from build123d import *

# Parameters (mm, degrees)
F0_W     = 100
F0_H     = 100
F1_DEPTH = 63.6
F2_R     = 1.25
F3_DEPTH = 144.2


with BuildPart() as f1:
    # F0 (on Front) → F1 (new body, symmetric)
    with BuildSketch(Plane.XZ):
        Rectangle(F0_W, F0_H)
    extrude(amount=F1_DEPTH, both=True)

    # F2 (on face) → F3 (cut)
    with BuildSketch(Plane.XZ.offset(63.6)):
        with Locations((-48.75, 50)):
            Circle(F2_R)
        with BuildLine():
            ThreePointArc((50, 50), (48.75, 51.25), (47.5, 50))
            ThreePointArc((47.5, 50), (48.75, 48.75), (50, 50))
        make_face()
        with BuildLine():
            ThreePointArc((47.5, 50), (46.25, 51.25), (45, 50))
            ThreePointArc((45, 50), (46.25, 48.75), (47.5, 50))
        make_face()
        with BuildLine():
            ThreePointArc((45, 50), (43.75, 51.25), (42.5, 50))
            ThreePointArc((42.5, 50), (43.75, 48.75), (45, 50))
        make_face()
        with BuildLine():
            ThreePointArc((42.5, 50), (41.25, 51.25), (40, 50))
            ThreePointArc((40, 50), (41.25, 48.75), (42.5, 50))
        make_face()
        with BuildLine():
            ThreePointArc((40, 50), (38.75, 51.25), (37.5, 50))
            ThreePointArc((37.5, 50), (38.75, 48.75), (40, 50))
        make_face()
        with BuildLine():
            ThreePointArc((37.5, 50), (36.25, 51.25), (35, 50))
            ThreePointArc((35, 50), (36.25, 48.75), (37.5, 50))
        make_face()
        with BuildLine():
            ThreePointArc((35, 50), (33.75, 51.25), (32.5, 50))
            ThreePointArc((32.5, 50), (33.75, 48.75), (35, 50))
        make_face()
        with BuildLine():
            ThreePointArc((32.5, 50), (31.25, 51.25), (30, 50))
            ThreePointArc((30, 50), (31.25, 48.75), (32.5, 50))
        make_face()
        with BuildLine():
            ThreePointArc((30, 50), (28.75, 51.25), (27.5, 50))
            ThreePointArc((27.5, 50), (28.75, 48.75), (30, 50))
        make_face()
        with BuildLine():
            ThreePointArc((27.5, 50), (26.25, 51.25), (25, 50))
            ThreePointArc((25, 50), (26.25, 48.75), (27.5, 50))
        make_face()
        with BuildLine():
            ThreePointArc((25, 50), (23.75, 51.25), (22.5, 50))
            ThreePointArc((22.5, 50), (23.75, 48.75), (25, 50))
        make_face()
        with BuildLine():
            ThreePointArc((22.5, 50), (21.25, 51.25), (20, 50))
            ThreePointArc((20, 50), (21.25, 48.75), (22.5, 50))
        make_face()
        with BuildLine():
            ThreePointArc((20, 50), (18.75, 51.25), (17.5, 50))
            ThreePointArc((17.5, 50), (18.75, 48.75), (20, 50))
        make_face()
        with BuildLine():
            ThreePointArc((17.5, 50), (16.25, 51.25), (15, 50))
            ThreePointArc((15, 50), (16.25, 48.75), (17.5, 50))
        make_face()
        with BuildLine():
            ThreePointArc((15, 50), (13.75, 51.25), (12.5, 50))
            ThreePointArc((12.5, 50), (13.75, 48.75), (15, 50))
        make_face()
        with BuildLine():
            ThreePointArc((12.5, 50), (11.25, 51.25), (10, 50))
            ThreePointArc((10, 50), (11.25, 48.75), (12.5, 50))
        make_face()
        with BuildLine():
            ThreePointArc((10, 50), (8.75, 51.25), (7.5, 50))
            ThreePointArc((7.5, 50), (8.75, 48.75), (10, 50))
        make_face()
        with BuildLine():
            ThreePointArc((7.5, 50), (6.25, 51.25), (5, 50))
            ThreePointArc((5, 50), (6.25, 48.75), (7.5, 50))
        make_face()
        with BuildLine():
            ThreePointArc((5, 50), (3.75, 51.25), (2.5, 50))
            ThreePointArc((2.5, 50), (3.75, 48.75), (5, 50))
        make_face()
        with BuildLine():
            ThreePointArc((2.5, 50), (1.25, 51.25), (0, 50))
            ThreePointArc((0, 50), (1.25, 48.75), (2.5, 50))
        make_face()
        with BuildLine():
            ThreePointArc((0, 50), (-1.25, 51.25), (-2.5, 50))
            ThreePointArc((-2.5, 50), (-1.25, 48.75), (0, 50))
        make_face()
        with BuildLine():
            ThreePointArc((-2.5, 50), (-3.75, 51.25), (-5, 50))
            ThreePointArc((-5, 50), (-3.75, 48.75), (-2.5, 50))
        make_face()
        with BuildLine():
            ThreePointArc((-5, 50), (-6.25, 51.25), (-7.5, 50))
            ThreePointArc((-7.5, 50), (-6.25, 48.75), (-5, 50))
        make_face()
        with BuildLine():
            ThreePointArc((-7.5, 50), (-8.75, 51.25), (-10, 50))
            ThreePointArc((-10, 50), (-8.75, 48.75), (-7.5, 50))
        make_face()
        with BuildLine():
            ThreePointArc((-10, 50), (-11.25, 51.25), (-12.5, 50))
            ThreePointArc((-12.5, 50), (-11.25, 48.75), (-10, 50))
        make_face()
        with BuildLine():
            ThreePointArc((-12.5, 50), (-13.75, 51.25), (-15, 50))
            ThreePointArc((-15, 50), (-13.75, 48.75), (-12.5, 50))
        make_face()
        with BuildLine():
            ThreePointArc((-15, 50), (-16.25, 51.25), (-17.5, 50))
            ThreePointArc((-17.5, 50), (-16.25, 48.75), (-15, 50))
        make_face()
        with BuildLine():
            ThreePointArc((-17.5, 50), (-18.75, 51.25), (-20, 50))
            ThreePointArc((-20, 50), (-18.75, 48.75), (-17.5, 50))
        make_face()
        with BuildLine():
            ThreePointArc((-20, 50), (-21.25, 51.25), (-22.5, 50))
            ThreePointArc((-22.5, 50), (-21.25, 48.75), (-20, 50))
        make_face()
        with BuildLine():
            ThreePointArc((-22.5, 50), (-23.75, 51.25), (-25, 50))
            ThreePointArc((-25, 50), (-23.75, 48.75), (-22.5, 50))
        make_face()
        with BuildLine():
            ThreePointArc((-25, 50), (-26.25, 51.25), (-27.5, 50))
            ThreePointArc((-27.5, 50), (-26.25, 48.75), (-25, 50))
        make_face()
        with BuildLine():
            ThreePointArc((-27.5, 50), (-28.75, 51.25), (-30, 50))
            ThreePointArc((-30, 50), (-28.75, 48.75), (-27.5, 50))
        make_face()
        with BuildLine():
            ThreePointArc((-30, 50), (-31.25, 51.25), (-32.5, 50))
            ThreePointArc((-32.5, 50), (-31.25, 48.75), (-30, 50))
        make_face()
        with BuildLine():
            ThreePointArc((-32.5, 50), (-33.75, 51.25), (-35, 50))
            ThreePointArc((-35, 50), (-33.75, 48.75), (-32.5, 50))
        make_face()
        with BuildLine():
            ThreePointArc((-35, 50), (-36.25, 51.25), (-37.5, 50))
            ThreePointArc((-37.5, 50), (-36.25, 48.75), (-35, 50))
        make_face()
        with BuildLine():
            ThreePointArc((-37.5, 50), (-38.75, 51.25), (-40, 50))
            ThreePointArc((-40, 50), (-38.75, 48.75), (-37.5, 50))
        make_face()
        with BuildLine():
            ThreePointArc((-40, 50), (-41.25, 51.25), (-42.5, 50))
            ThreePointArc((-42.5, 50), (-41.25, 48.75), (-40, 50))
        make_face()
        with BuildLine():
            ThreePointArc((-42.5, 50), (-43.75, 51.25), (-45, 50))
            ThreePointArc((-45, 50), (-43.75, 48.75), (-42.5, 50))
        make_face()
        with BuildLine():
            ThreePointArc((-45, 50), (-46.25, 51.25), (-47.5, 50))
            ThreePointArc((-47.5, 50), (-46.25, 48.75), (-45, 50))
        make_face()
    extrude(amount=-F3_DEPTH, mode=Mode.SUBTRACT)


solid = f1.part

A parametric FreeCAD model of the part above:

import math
import FreeCAD as App
import Part
import Sketcher
Q = App.Units.Quantity

doc = App.newDocument("Part")
body = doc.addObject("PartDesign::Body", "Body")

# Sketch on XZ plane
sketch1 = body.newObject("Sketcher::SketchObject", "Sketch")
sketch1.AttachmentSupport = (doc.getObject("XZ_Plane"), [""])
sketch1.MapMode = "FlatFace"
sketch1.addGeometry([
    Part.LineSegment(App.Vector(-50, 50, 0), App.Vector(-50, -50, 0)),
    Part.LineSegment(App.Vector(-50, -50, 0), App.Vector(50, -50, 0)),
    Part.LineSegment(App.Vector(50, -50, 0), App.Vector(50, 50, 0)),
    Part.LineSegment(App.Vector(50, 50, 0), App.Vector(-50, 50, 0)),
], False)
sketch1.addConstraint([
    Sketcher.Constraint("Coincident", 0, 2, 1, 1),
    Sketcher.Constraint("Coincident", 1, 2, 2, 1),
    Sketcher.Constraint("Coincident", 2, 2, 3, 1),
    Sketcher.Constraint("Coincident", 3, 2, 0, 1),
    Sketcher.Constraint("Vertical", 0),
    Sketcher.Constraint("Horizontal", 1),
    Sketcher.Constraint("Vertical", 2),
    Sketcher.Constraint("Horizontal", 3),
    Sketcher.Constraint("Symmetric", 0, 2, 2, 2, -1, 1),
    Sketcher.Constraint("Equal", 3, 0),
    Sketcher.Constraint("DistanceX", 1, 1, 1, 2, Q("100 mm")),
])
pad1 = body.newObject("PartDesign::Pad", "Pad")
pad1.Profile = sketch1
pad1.Length = 127.2
pad1.Midplane = True

# Sketch on XZ plane
sketch2 = body.newObject("Sketcher::SketchObject", "Sketch001")
sketch2.AttachmentSupport = (doc.getObject("XZ_Plane"), [""])
sketch2.MapMode = "FlatFace"
sketch2.AttachmentOffset = App.Placement(App.Vector(0, 0, 63.6), App.Rotation())
sketch2.addGeometry([
    Part.Circle(App.Vector(-48.75, 50, 0), App.Vector(0, 0, 1), 1.25),  # 0
    Part.Circle(App.Vector(48.75, 50, 0), App.Vector(0, 0, 1), 1.25),  # 1
    Part.ArcOfCircle(Part.Circle(App.Vector(46.25, 50, 0), App.Vector(0, 0, 1), 1.25), math.radians(0), math.radians(180)),  # 2
    Part.ArcOfCircle(Part.Circle(App.Vector(46.25, 50, 0), App.Vector(0, 0, 1), 1.25), math.radians(180), math.radians(360)),  # 3
    Part.ArcOfCircle(Part.Circle(App.Vector(43.75, 50, 0), App.Vector(0, 0, 1), 1.25), math.radians(0), math.radians(180)),  # 4
    Part.ArcOfCircle(Part.Circle(App.Vector(43.75, 50, 0), App.Vector(0, 0, 1), 1.25), math.radians(180), math.radians(360)),  # 5
    Part.ArcOfCircle(Part.Circle(App.Vector(41.25, 50, 0), App.Vector(0, 0, 1), 1.25), math.radians(0), math.radians(180)),  # 6
    Part.ArcOfCircle(Part.Circle(App.Vector(41.25, 50, 0), App.Vector(0, 0, 1), 1.25), math.radians(180), math.radians(360)),  # 7
    Part.ArcOfCircle(Part.Circle(App.Vector(38.75, 50, 0), App.Vector(0, 0, 1), 1.25), math.radians(0), math.radians(180)),  # 8
    Part.ArcOfCircle(Part.Circle(App.Vector(38.75, 50, 0), App.Vector(0, 0, 1), 1.25), math.radians(180), math.radians(360)),  # 9
    Part.ArcOfCircle(Part.Circle(App.Vector(36.25, 50, 0), App.Vector(0, 0, 1), 1.25), math.radians(0), math.radians(180)),  # 10
    Part.ArcOfCircle(Part.Circle(App.Vector(36.25, 50, 0), App.Vector(0, 0, 1), 1.25), math.radians(180), math.radians(360)),  # 11
    Part.ArcOfCircle(Part.Circle(App.Vector(33.75, 50, 0), App.Vector(0, 0, 1), 1.25), math.radians(0), math.radians(180)),  # 12
    Part.ArcOfCircle(Part.Circle(App.Vector(33.75, 50, 0), App.Vector(0, 0, 1), 1.25), math.radians(180), math.radians(360)),  # 13
    Part.ArcOfCircle(Part.Circle(App.Vector(31.25, 50, 0), App.Vector(0, 0, 1), 1.25), math.radians(0), math.radians(180)),  # 14
    Part.ArcOfCircle(Part.Circle(App.Vector(31.25, 50, 0), App.Vector(0, 0, 1), 1.25), math.radians(180), math.radians(360)),  # 15
    Part.ArcOfCircle(Part.Circle(App.Vector(28.75, 50, 0), App.Vector(0, 0, 1), 1.25), math.radians(0), math.radians(180)),  # 16
    Part.ArcOfCircle(Part.Circle(App.Vector(28.75, 50, 0), App.Vector(0, 0, 1), 1.25), math.radians(180), math.radians(360)),  # 17
    Part.ArcOfCircle(Part.Circle(App.Vector(26.25, 50, 0), App.Vector(0, 0, 1), 1.25), math.radians(0), math.radians(180)),  # 18
    Part.ArcOfCircle(Part.Circle(App.Vector(26.25, 50, 0), App.Vector(0, 0, 1), 1.25), math.radians(180), math.radians(360)),  # 19
    Part.ArcOfCircle(Part.Circle(App.Vector(23.75, 50, 0), App.Vector(0, 0, 1), 1.25), math.radians(0), math.radians(180)),  # 20
    Part.ArcOfCircle(Part.Circle(App.Vector(23.75, 50, 0), App.Vector(0, 0, 1), 1.25), math.radians(180), math.radians(360)),  # 21
    Part.ArcOfCircle(Part.Circle(App.Vector(21.25, 50, 0), App.Vector(0, 0, 1), 1.25), math.radians(0), math.radians(180)),  # 22
    Part.ArcOfCircle(Part.Circle(App.Vector(21.25, 50, 0), App.Vector(0, 0, 1), 1.25), math.radians(180), math.radians(360)),  # 23
    Part.ArcOfCircle(Part.Circle(App.Vector(18.75, 50, 0), App.Vector(0, 0, 1), 1.25), math.radians(0), math.radians(180)),  # 24
    Part.ArcOfCircle(Part.Circle(App.Vector(18.75, 50, 0), App.Vector(0, 0, 1), 1.25), math.radians(180), math.radians(360)),  # 25
    Part.ArcOfCircle(Part.Circle(App.Vector(16.25, 50, 0), App.Vector(0, 0, 1), 1.25), math.radians(0), math.radians(180)),  # 26
    Part.ArcOfCircle(Part.Circle(App.Vector(16.25, 50, 0), App.Vector(0, 0, 1), 1.25), math.radians(180), math.radians(360)),  # 27
    Part.ArcOfCircle(Part.Circle(App.Vector(13.75, 50, 0), App.Vector(0, 0, 1), 1.25), math.radians(0), math.radians(180)),  # 28
    Part.ArcOfCircle(Part.Circle(App.Vector(13.75, 50, 0), App.Vector(0, 0, 1), 1.25), math.radians(180), math.radians(360)),  # 29
    Part.ArcOfCircle(Part.Circle(App.Vector(11.25, 50, 0), App.Vector(0, 0, 1), 1.25), math.radians(0), math.radians(180)),  # 30
    Part.ArcOfCircle(Part.Circle(App.Vector(11.25, 50, 0), App.Vector(0, 0, 1), 1.25), math.radians(180), math.radians(360)),  # 31
    Part.ArcOfCircle(Part.Circle(App.Vector(8.75, 50, 0), App.Vector(0, 0, 1), 1.25), math.radians(0), math.radians(180)),  # 32
    Part.ArcOfCircle(Part.Circle(App.Vector(8.75, 50, 0), App.Vector(0, 0, 1), 1.25), math.radians(180), math.radians(360)),  # 33
    Part.ArcOfCircle(Part.Circle(App.Vector(6.25, 50, 0), App.Vector(0, 0, 1), 1.25), math.radians(0), math.radians(180)),  # 34
    Part.ArcOfCircle(Part.Circle(App.Vector(6.25, 50, 0), App.Vector(0, 0, 1), 1.25), math.radians(180), math.radians(360)),  # 35
    Part.ArcOfCircle(Part.Circle(App.Vector(3.75, 50, 0), App.Vector(0, 0, 1), 1.25), math.radians(0), math.radians(180)),  # 36
    Part.ArcOfCircle(Part.Circle(App.Vector(3.75, 50, 0), App.Vector(0, 0, 1), 1.25), math.radians(180), math.radians(360)),  # 37
    Part.ArcOfCircle(Part.Circle(App.Vector(1.25, 50, 0), App.Vector(0, 0, 1), 1.25), math.radians(0), math.radians(180)),  # 38
    Part.ArcOfCircle(Part.Circle(App.Vector(1.25, 50, 0), App.Vector(0, 0, 1), 1.25), math.radians(180), math.radians(360)),  # 39
    Part.ArcOfCircle(Part.Circle(App.Vector(-1.25, 50, 0), App.Vector(0, 0, 1), 1.25), math.radians(0), math.radians(180)),  # 40
    Part.ArcOfCircle(Part.Circle(App.Vector(-1.25, 50, 0), App.Vector(0, 0, 1), 1.25), math.radians(180), math.radians(360)),  # 41
    Part.ArcOfCircle(Part.Circle(App.Vector(-3.75, 50, 0), App.Vector(0, 0, 1), 1.25), math.radians(0), math.radians(180)),  # 42
    Part.ArcOfCircle(Part.Circle(App.Vector(-3.75, 50, 0), App.Vector(0, 0, 1), 1.25), math.radians(180), math.radians(360)),  # 43
    Part.ArcOfCircle(Part.Circle(App.Vector(-6.25, 50, 0), App.Vector(0, 0, 1), 1.25), math.radians(0), math.radians(180)),  # 44
    Part.ArcOfCircle(Part.Circle(App.Vector(-6.25, 50, 0), App.Vector(0, 0, 1), 1.25), math.radians(180), math.radians(360)),  # 45
    Part.ArcOfCircle(Part.Circle(App.Vector(-8.75, 50, 0), App.Vector(0, 0, 1), 1.25), math.radians(0), math.radians(180)),  # 46
    Part.ArcOfCircle(Part.Circle(App.Vector(-8.75, 50, 0), App.Vector(0, 0, 1), 1.25), math.radians(180), math.radians(360)),  # 47
    Part.ArcOfCircle(Part.Circle(App.Vector(-11.25, 50, 0), App.Vector(0, 0, 1), 1.25), math.radians(0), math.radians(180)),  # 48
    Part.ArcOfCircle(Part.Circle(App.Vector(-11.25, 50, 0), App.Vector(0, 0, 1), 1.25), math.radians(180), math.radians(360)),  # 49
    Part.ArcOfCircle(Part.Circle(App.Vector(-13.75, 50, 0), App.Vector(0, 0, 1), 1.25), math.radians(0), math.radians(180)),  # 50
    Part.ArcOfCircle(Part.Circle(App.Vector(-13.75, 50, 0), App.Vector(0, 0, 1), 1.25), math.radians(180), math.radians(360)),  # 51
    Part.ArcOfCircle(Part.Circle(App.Vector(-16.25, 50, 0), App.Vector(0, 0, 1), 1.25), math.radians(0), math.radians(180)),  # 52
    Part.ArcOfCircle(Part.Circle(App.Vector(-16.25, 50, 0), App.Vector(0, 0, 1), 1.25), math.radians(180), math.radians(360)),  # 53
    Part.ArcOfCircle(Part.Circle(App.Vector(-18.75, 50, 0), App.Vector(0, 0, 1), 1.25), math.radians(0), math.radians(180)),  # 54
    Part.ArcOfCircle(Part.Circle(App.Vector(-18.75, 50, 0), App.Vector(0, 0, 1), 1.25), math.radians(180), math.radians(360)),  # 55
    Part.ArcOfCircle(Part.Circle(App.Vector(-21.25, 50, 0), App.Vector(0, 0, 1), 1.25), math.radians(0), math.radians(180)),  # 56
    Part.ArcOfCircle(Part.Circle(App.Vector(-21.25, 50, 0), App.Vector(0, 0, 1), 1.25), math.radians(180), math.radians(360)),  # 57
    Part.ArcOfCircle(Part.Circle(App.Vector(-23.75, 50, 0), App.Vector(0, 0, 1), 1.25), math.radians(0), math.radians(180)),  # 58
    Part.ArcOfCircle(Part.Circle(App.Vector(-23.75, 50, 0), App.Vector(0, 0, 1), 1.25), math.radians(180), math.radians(360)),  # 59
    Part.ArcOfCircle(Part.Circle(App.Vector(-26.25, 50, 0), App.Vector(0, 0, 1), 1.25), math.radians(0), math.radians(180)),  # 60
    Part.ArcOfCircle(Part.Circle(App.Vector(-26.25, 50, 0), App.Vector(0, 0, 1), 1.25), math.radians(180), math.radians(360)),  # 61
    Part.ArcOfCircle(Part.Circle(App.Vector(-28.75, 50, 0), App.Vector(0, 0, 1), 1.25), math.radians(0), math.radians(180)),  # 62
    Part.ArcOfCircle(Part.Circle(App.Vector(-28.75, 50, 0), App.Vector(0, 0, 1), 1.25), math.radians(180), math.radians(360)),  # 63
    Part.ArcOfCircle(Part.Circle(App.Vector(-31.25, 50, 0), App.Vector(0, 0, 1), 1.25), math.radians(0), math.radians(180)),  # 64
    Part.ArcOfCircle(Part.Circle(App.Vector(-31.25, 50, 0), App.Vector(0, 0, 1), 1.25), math.radians(180), math.radians(360)),  # 65
    Part.ArcOfCircle(Part.Circle(App.Vector(-33.75, 50, 0), App.Vector(0, 0, 1), 1.25), math.radians(0), math.radians(180)),  # 66
    Part.ArcOfCircle(Part.Circle(App.Vector(-33.75, 50, 0), App.Vector(0, 0, 1), 1.25), math.radians(180), math.radians(360)),  # 67
    Part.ArcOfCircle(Part.Circle(App.Vector(-36.25, 50, 0), App.Vector(0, 0, 1), 1.25), math.radians(0), math.radians(180)),  # 68
    Part.ArcOfCircle(Part.Circle(App.Vector(-36.25, 50, 0), App.Vector(0, 0, 1), 1.25), math.radians(180), math.radians(360)),  # 69
    Part.ArcOfCircle(Part.Circle(App.Vector(-38.75, 50, 0), App.Vector(0, 0, 1), 1.25), math.radians(0), math.radians(180)),  # 70
    Part.ArcOfCircle(Part.Circle(App.Vector(-38.75, 50, 0), App.Vector(0, 0, 1), 1.25), math.radians(180), math.radians(360)),  # 71
    Part.ArcOfCircle(Part.Circle(App.Vector(-41.25, 50, 0), App.Vector(0, 0, 1), 1.25), math.radians(0), math.radians(180)),  # 72
    Part.ArcOfCircle(Part.Circle(App.Vector(-41.25, 50, 0), App.Vector(0, 0, 1), 1.25), math.radians(180), math.radians(360)),  # 73
    Part.ArcOfCircle(Part.Circle(App.Vector(-43.75, 50, 0), App.Vector(0, 0, 1), 1.25), math.radians(0), math.radians(180)),  # 74
    Part.ArcOfCircle(Part.Circle(App.Vector(-43.75, 50, 0), App.Vector(0, 0, 1), 1.25), math.radians(180), math.radians(360)),  # 75
    Part.ArcOfCircle(Part.Circle(App.Vector(-46.25, 50, 0), App.Vector(0, 0, 1), 1.25), math.radians(180), math.radians(360)),  # 76
    Part.ArcOfCircle(Part.Circle(App.Vector(-46.25, 50, 0), App.Vector(0, 0, 1), 1.25), math.radians(0), math.radians(180)),  # 77
], False)
sketch2.addConstraint([
    Sketcher.Constraint("Tangent", 2, 1, 3, 2),
    Sketcher.Constraint("Coincident", 3, 1, 2, 2),
    Sketcher.Constraint("Tangent", 4, 1, 5, 2),
    Sketcher.Constraint("Coincident", 5, 1, 4, 2),
    Sketcher.Constraint("Tangent", 6, 1, 7, 2),
    Sketcher.Constraint("Coincident", 7, 1, 6, 2),
    Sketcher.Constraint("Tangent", 8, 1, 9, 2),
    Sketcher.Constraint("Coincident", 9, 1, 8, 2),
    Sketcher.Constraint("Tangent", 10, 1, 11, 2),
    Sketcher.Constraint("Coincident", 11, 1, 10, 2),
    Sketcher.Constraint("Tangent", 12, 1, 13, 2),
    Sketcher.Constraint("Coincident", 13, 1, 12, 2),
    Sketcher.Constraint("Tangent", 14, 1, 15, 2),
    Sketcher.Constraint("Coincident", 15, 1, 14, 2),
    Sketcher.Constraint("Tangent", 16, 1, 17, 2),
    Sketcher.Constraint("Coincident", 17, 1, 16, 2),
    Sketcher.Constraint("Tangent", 18, 1, 19, 2),
    Sketcher.Constraint("Coincident", 19, 1, 18, 2),
    Sketcher.Constraint("Tangent", 20, 1, 21, 2),
    Sketcher.Constraint("Coincident", 21, 1, 20, 2),
    Sketcher.Constraint("Tangent", 22, 1, 23, 2),
    Sketcher.Constraint("Coincident", 23, 1, 22, 2),
    Sketcher.Constraint("Tangent", 24, 1, 25, 2),
    Sketcher.Constraint("Coincident", 25, 1, 24, 2),
    Sketcher.Constraint("Tangent", 26, 1, 27, 2),
    Sketcher.Constraint("Coincident", 27, 1, 26, 2),
    Sketcher.Constraint("Tangent", 28, 1, 29, 2),
    Sketcher.Constraint("Coincident", 29, 1, 28, 2),
    Sketcher.Constraint("Tangent", 30, 1, 31, 2),
    Sketcher.Constraint("Coincident", 31, 1, 30, 2),
    Sketcher.Constraint("Tangent", 32, 1, 33, 2),
    Sketcher.Constraint("Coincident", 33, 1, 32, 2),
    Sketcher.Constraint("Tangent", 34, 1, 35, 2),
    Sketcher.Constraint("Coincident", 35, 1, 34, 2),
    Sketcher.Constraint("Tangent", 36, 1, 37, 2),
    Sketcher.Constraint("Coincident", 37, 1, 36, 2),
    Sketcher.Constraint("Tangent", 38, 1, 39, 2),
    Sketcher.Constraint("Coincident", 39, 1, 38, 2),
    Sketcher.Constraint("Tangent", 40, 1, 41, 2),
    Sketcher.Constraint("Coincident", 41, 1, 40, 2),
    Sketcher.Constraint("Tangent", 42, 1, 43, 2),
    Sketcher.Constraint("Coincident", 43, 1, 42, 2),
    Sketcher.Constraint("Tangent", 44, 1, 45, 2),
    Sketcher.Constraint("Coincident", 45, 1, 44, 2),
    Sketcher.Constraint("Tangent", 46, 1, 47, 2),
    Sketcher.Constraint("Coincident", 47, 1, 46, 2),
    Sketcher.Constraint("Tangent", 48, 1, 49, 2),
    Sketcher.Constraint("Coincident", 49, 1, 48, 2),
    Sketcher.Constraint("Tangent", 50, 1, 51, 2),
    Sketcher.Constraint("Coincident", 51, 1, 50, 2),
    Sketcher.Constraint("Tangent", 52, 1, 53, 2),
    Sketcher.Constraint("Coincident", 53, 1, 52, 2),
    Sketcher.Constraint("Tangent", 54, 1, 55, 2),
    Sketcher.Constraint("Coincident", 55, 1, 54, 2),
    Sketcher.Constraint("Tangent", 56, 1, 57, 2),
    Sketcher.Constraint("Coincident", 57, 1, 56, 2),
    Sketcher.Constraint("Tangent", 58, 1, 59, 2),
    Sketcher.Constraint("Coincident", 59, 1, 58, 2),
    Sketcher.Constraint("Tangent", 60, 1, 61, 2),
    Sketcher.Constraint("Coincident", 61, 1, 60, 2),
    Sketcher.Constraint("Tangent", 62, 1, 63, 2),
    Sketcher.Constraint("Coincident", 63, 1, 62, 2),
    Sketcher.Constraint("Tangent", 64, 1, 65, 2),
    Sketcher.Constraint("Coincident", 65, 1, 64, 2),
    Sketcher.Constraint("Tangent", 66, 1, 67, 2),
    Sketcher.Constraint("Coincident", 67, 1, 66, 2),
    Sketcher.Constraint("Tangent", 68, 1, 69, 2),
    Sketcher.Constraint("Coincident", 69, 1, 68, 2),
    Sketcher.Constraint("Tangent", 70, 1, 71, 2),
    Sketcher.Constraint("Coincident", 71, 1, 70, 2),
    Sketcher.Constraint("Tangent", 72, 1, 73, 2),
    Sketcher.Constraint("Coincident", 73, 1, 72, 2),
    Sketcher.Constraint("Tangent", 74, 1, 75, 2),
    Sketcher.Constraint("Coincident", 75, 1, 74, 2),
    Sketcher.Constraint("Tangent", 76, 1, 77, 2),
    Sketcher.Constraint("Coincident", 77, 1, 76, 2),
    Sketcher.Constraint("Coincident", 4, 1, 3, 1),
    Sketcher.Constraint("Coincident", 6, 1, 5, 1),
    Sketcher.Constraint("Coincident", 8, 1, 7, 1),
    Sketcher.Constraint("Coincident", 10, 1, 9, 1),
    Sketcher.Constraint("Coincident", 12, 1, 11, 1),
    Sketcher.Constraint("Coincident", 14, 1, 13, 1),
    Sketcher.Constraint("Coincident", 16, 1, 15, 1),
    Sketcher.Constraint("Coincident", 18, 1, 17, 1),
    Sketcher.Constraint("Coincident", 20, 1, 19, 1),
    Sketcher.Constraint("Coincident", 22, 1, 21, 1),
    Sketcher.Constraint("Coincident", 24, 1, 23, 1),
    Sketcher.Constraint("Coincident", 26, 1, 25, 1),
    Sketcher.Constraint("Coincident", 28, 1, 27, 1),
    Sketcher.Constraint("Coincident", 30, 1, 29, 1),
    Sketcher.Constraint("Coincident", 32, 1, 31, 1),
    Sketcher.Constraint("Coincident", 34, 1, 33, 1),
    Sketcher.Constraint("Coincident", 36, 1, 35, 1),
    Sketcher.Constraint("Coincident", 38, 1, 37, 1),
    Sketcher.Constraint("Coincident", 40, 1, 39, 1),
    Sketcher.Constraint("Coincident", 42, 1, 41, 1),
    Sketcher.Constraint("Coincident", 44, 1, 43, 1),
    Sketcher.Constraint("Coincident", 46, 1, 45, 1),
    Sketcher.Constraint("Coincident", 48, 1, 47, 1),
    Sketcher.Constraint("Coincident", 50, 1, 49, 1),
    Sketcher.Constraint("Coincident", 52, 1, 51, 1),
    Sketcher.Constraint("Coincident", 54, 1, 53, 1),
    Sketcher.Constraint("Coincident", 56, 1, 55, 1),
    Sketcher.Constraint("Coincident", 58, 1, 57, 1),
    Sketcher.Constraint("Coincident", 60, 1, 59, 1),
    Sketcher.Constraint("Coincident", 62, 1, 61, 1),
    Sketcher.Constraint("Coincident", 64, 1, 63, 1),
    Sketcher.Constraint("Coincident", 66, 1, 65, 1),
    Sketcher.Constraint("Coincident", 68, 1, 67, 1),
    Sketcher.Constraint("Coincident", 70, 1, 69, 1),
    Sketcher.Constraint("Coincident", 72, 1, 71, 1),
    Sketcher.Constraint("Coincident", 74, 1, 73, 1),
    Sketcher.Constraint("Coincident", 77, 1, 75, 1),
    Sketcher.Constraint("Equal", 0, 1),
    Sketcher.Constraint("Equal", 1, 2),
    Sketcher.Constraint("Equal", 3, 4),
    Sketcher.Constraint("Equal", 5, 6),
    Sketcher.Constraint("Equal", 7, 8),
    Sketcher.Constraint("Equal", 9, 10),
    Sketcher.Constraint("Equal", 11, 12),
    Sketcher.Constraint("Equal", 13, 14),
    Sketcher.Constraint("Equal", 15, 16),
    Sketcher.Constraint("Equal", 17, 18),
    Sketcher.Constraint("Equal", 19, 20),
    Sketcher.Constraint("Equal", 21, 22),
    Sketcher.Constraint("Equal", 23, 24),
    Sketcher.Constraint("Equal", 25, 26),
    Sketcher.Constraint("Equal", 27, 28),
    Sketcher.Constraint("Equal", 29, 30),
    Sketcher.Constraint("Equal", 31, 32),
    Sketcher.Constraint("Equal", 33, 34),
    Sketcher.Constraint("Equal", 35, 36),
    Sketcher.Constraint("Equal", 37, 38),
    Sketcher.Constraint("Equal", 39, 40),
    Sketcher.Constraint("Equal", 41, 42),
    Sketcher.Constraint("Equal", 43, 44),
    Sketcher.Constraint("Equal", 45, 46),
    Sketcher.Constraint("Equal", 47, 48),
    Sketcher.Constraint("Equal", 49, 50),
    Sketcher.Constraint("Equal", 51, 52),
    Sketcher.Constraint("Equal", 53, 54),
    Sketcher.Constraint("Equal", 55, 56),
    Sketcher.Constraint("Equal", 57, 58),
    Sketcher.Constraint("Equal", 59, 60),
    Sketcher.Constraint("Equal", 61, 62),
    Sketcher.Constraint("Equal", 63, 64),
    Sketcher.Constraint("Equal", 65, 66),
    Sketcher.Constraint("Equal", 67, 68),
    Sketcher.Constraint("Equal", 69, 70),
    Sketcher.Constraint("Equal", 71, 72),
    Sketcher.Constraint("Equal", 73, 74),
    Sketcher.Constraint("Equal", 75, 76),
    Sketcher.Constraint("Symmetric", 0, 3, 1, 3, -2),
    Sketcher.Constraint("Symmetric", 38, 3, 40, 3, -2),
    Sketcher.Constraint("Horizontal", 1, 3, 2, 3),
    Sketcher.Constraint("Horizontal", 3, 3, 4, 3),
    Sketcher.Constraint("Horizontal", 5, 3, 6, 3),
    Sketcher.Constraint("Horizontal", 7, 3, 8, 3),
    Sketcher.Constraint("Horizontal", 9, 3, 10, 3),
    Sketcher.Constraint("Horizontal", 11, 3, 12, 3),
    Sketcher.Constraint("Horizontal", 13, 3, 14, 3),
    Sketcher.Constraint("Horizontal", 15, 3, 16, 3),
    Sketcher.Constraint("Horizontal", 17, 3, 18, 3),
    Sketcher.Constraint("Horizontal", 19, 3, 20, 3),
    Sketcher.Constraint("Horizontal", 21, 3, 22, 3),
    Sketcher.Constraint("Horizontal", 23, 3, 24, 3),
    Sketcher.Constraint("Horizontal", 25, 3, 26, 3),
    Sketcher.Constraint("Horizontal", 27, 3, 28, 3),
    Sketcher.Constraint("Horizontal", 29, 3, 30, 3),
    Sketcher.Constraint("Horizontal", 31, 3, 32, 3),
    Sketcher.Constraint("Horizontal", 33, 3, 34, 3),
    Sketcher.Constraint("Horizontal", 35, 3, 36, 3),
    Sketcher.Constraint("Horizontal", 37, 3, 38, 3),
    Sketcher.Constraint("Horizontal", 41, 3, 42, 3),
    Sketcher.Constraint("Horizontal", 43, 3, 44, 3),
    Sketcher.Constraint("Horizontal", 45, 3, 46, 3),
    Sketcher.Constraint("Horizontal", 47, 3, 48, 3),
    Sketcher.Constraint("Horizontal", 49, 3, 50, 3),
    Sketcher.Constraint("Horizontal", 51, 3, 52, 3),
    Sketcher.Constraint("Horizontal", 53, 3, 54, 3),
    Sketcher.Constraint("Horizontal", 55, 3, 56, 3),
    Sketcher.Constraint("Horizontal", 57, 3, 58, 3),
    Sketcher.Constraint("Horizontal", 59, 3, 60, 3),
    Sketcher.Constraint("Horizontal", 61, 3, 62, 3),
    Sketcher.Constraint("Horizontal", 63, 3, 64, 3),
    Sketcher.Constraint("Horizontal", 65, 3, 66, 3),
    Sketcher.Constraint("Horizontal", 67, 3, 68, 3),
    Sketcher.Constraint("Horizontal", 69, 3, 70, 3),
    Sketcher.Constraint("Horizontal", 71, 3, 72, 3),
    Sketcher.Constraint("Horizontal", 73, 3, 74, 3),
    Sketcher.Constraint("Horizontal", 75, 3, 76, 3),
    Sketcher.Constraint("Horizontal", 77, 3, 2, 1),
    Sketcher.Constraint("Horizontal", 2, 1, 3, 1),
    Sketcher.Constraint("Horizontal", 4, 1, 5, 1),
    Sketcher.Constraint("Horizontal", 6, 1, 7, 1),
    Sketcher.Constraint("Horizontal", 8, 1, 9, 1),
    Sketcher.Constraint("Horizontal", 10, 1, 11, 1),
    Sketcher.Constraint("Horizontal", 12, 1, 13, 1),
    Sketcher.Constraint("Horizontal", 14, 1, 15, 1),
    Sketcher.Constraint("Horizontal", 16, 1, 17, 1),
    Sketcher.Constraint("Horizontal", 18, 1, 19, 1),
    Sketcher.Constraint("Horizontal", 20, 1, 21, 1),
    Sketcher.Constraint("Horizontal", 22, 1, 23, 1),
    Sketcher.Constraint("Horizontal", 24, 1, 25, 1),
    Sketcher.Constraint("Horizontal", 26, 1, 27, 1),
    Sketcher.Constraint("Horizontal", 28, 1, 29, 1),
    Sketcher.Constraint("Horizontal", 30, 1, 31, 1),
    Sketcher.Constraint("Horizontal", 32, 1, 33, 1),
    Sketcher.Constraint("Horizontal", 34, 1, 35, 1),
    Sketcher.Constraint("Horizontal", 36, 1, 37, 1),
    Sketcher.Constraint("Horizontal", 38, 1, 39, 1),
    Sketcher.Constraint("Horizontal", 40, 1, 41, 1),
    Sketcher.Constraint("Horizontal", 42, 1, 43, 1),
    Sketcher.Constraint("Horizontal", 44, 1, 45, 1),
    Sketcher.Constraint("Horizontal", 46, 1, 47, 1),
    Sketcher.Constraint("Horizontal", 48, 1, 49, 1),
    Sketcher.Constraint("Horizontal", 50, 1, 51, 1),
    Sketcher.Constraint("Horizontal", 52, 1, 53, 1),
    Sketcher.Constraint("Horizontal", 54, 1, 55, 1),
    Sketcher.Constraint("Horizontal", 56, 1, 57, 1),
    Sketcher.Constraint("Horizontal", 58, 1, 59, 1),
    Sketcher.Constraint("Horizontal", 60, 1, 61, 1),
    Sketcher.Constraint("Horizontal", 62, 1, 63, 1),
    Sketcher.Constraint("Horizontal", 64, 1, 65, 1),
    Sketcher.Constraint("Horizontal", 66, 1, 67, 1),
    Sketcher.Constraint("Horizontal", 68, 1, 69, 1),
    Sketcher.Constraint("Horizontal", 70, 1, 71, 1),
    Sketcher.Constraint("Horizontal", 72, 1, 73, 1),
    Sketcher.Constraint("Horizontal", 74, 1, 75, 1),
    Sketcher.Constraint("Horizontal", 75, 1, 76, 1),
    Sketcher.Constraint("Diameter", 0, Q("2.5 mm")),
    Sketcher.Constraint("DistanceY", -1, 1, 0, 3, Q("50 mm")),
    Sketcher.Constraint("DistanceX", 0, 3, -1, 1, Q("48.75 mm")),
])
pocket1 = body.newObject("PartDesign::Pocket", "Pocket")
pocket1.Profile = sketch2
pocket1.Length = 144.2

doc.recompute()
